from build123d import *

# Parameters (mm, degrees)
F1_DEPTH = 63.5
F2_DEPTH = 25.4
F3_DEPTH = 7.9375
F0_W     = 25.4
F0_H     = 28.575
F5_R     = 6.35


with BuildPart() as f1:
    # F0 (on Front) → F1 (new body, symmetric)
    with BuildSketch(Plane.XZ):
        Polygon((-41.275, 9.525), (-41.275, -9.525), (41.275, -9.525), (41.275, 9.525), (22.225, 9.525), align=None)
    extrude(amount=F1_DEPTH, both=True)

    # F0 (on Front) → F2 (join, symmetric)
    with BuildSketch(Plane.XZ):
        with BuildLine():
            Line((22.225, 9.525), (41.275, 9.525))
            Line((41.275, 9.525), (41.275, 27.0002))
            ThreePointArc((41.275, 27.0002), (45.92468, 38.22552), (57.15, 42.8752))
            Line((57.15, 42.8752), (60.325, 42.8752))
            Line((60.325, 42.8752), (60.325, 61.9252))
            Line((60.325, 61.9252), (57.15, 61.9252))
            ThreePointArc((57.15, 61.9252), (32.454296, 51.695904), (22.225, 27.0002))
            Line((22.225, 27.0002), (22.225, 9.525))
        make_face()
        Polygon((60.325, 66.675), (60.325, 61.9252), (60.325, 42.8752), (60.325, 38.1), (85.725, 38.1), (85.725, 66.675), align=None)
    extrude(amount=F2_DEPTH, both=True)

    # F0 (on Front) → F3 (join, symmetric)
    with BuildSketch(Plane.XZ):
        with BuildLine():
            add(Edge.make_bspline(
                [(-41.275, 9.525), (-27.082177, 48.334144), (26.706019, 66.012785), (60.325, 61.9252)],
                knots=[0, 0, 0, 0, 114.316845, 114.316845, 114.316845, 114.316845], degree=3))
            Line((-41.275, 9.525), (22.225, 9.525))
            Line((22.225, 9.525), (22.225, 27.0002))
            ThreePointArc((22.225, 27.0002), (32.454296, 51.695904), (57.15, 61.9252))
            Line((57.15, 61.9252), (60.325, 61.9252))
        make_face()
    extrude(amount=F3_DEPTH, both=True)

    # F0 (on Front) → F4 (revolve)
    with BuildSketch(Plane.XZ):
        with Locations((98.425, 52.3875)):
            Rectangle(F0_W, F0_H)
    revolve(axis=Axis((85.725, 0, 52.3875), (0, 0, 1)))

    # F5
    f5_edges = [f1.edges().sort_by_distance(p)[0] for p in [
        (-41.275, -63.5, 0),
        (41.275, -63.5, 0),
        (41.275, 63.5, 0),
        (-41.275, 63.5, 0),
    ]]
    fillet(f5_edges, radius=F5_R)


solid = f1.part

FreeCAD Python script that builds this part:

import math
import FreeCAD as App
import Part
import Sketcher
Q = App.Units.Quantity


def edges_at(feature, points):
    """Names of the edges that pass closest to the given points."""
    edges = feature.Shape.Edges
    near = lambda p: min(range(len(edges)), key=lambda i: edges[i].distToShape(Part.Vertex(*p))[0])
    return sorted({f"Edge{near(p) + 1}" for p in points})

doc = App.newDocument("Part")
body = doc.addObject("PartDesign::Body", "Body")

sketch1 = body.newObject("Sketcher::SketchObject", "Sketch")
sketch1.AttachmentSupport = (doc.getObject("XZ_Plane"), [""])
sketch1.MapMode = "FlatFace"
sketch1.addGeometry([
    Part.LineSegment(App.Vector(-41, 10, 0), App.Vector(-41, -10, 0)),
    Part.LineSegment(App.Vector(-41, -10, 0), App.Vector(41, -10, 0)),
    Part.LineSegment(App.Vector(41, -10, 0), App.Vector(41, 10, 0)),
    Part.LineSegment(App.Vector(41, 10, 0), App.Vector(-41, 10, 0)),
], False)
sketch1.addConstraint([
    Sketcher.Constraint("Coincident", 0, 2, 1, 1),
    Sketcher.Constraint("Coincident", 1, 2, 2, 1),
    Sketcher.Constraint("Coincident", 2, 2, 3, 1),
    Sketcher.Constraint("Coincident", 3, 2, 0, 1),
    Sketcher.Constraint("Vertical", 0),
    Sketcher.Constraint("Horizontal", 1),
    Sketcher.Constraint("Vertical", 2),
    Sketcher.Constraint("Horizontal", 3),
    Sketcher.Constraint("Symmetric", 0, 2, 2, 2, -1, 1),
    Sketcher.Constraint("DistanceX", 1, 1, 1, 2, Q("3.25 in")),
    Sketcher.Constraint("DistanceY", 0, 2, 0, 1, Q("0.75 in")),
])
pad1 = body.newObject("PartDesign::Pad", "Pad")
pad1.Profile = sketch1
pad1.Length = Q("5 in")
pad1.Midplane = True

sketch2 = body.newObject("Sketcher::SketchObject", "Sketch001")
sketch2.AttachmentSupport = (doc.getObject("XZ_Plane"), [""])
sketch2.MapMode = "FlatFace"
sketch2.addGeometry([
    Part.LineSegment(App.Vector(22.2, 9.5, 0), App.Vector(41.3, 9.5, 0)),
    Part.LineSegment(App.Vector(41.3, 9.5, 0), App.Vector(41.3, 27, 0)),
    Part.ArcOfCircle(Part.Circle(App.Vector(57.2, 27, 0), App.Vector(0, 0, 1), 15.9), math.radians(90), math.radians(180)),
    Part.LineSegment(App.Vector(57.1, 42.9, 0), App.Vector(60.3, 42.9, 0)),
    Part.LineSegment(App.Vector(60.3, 42.9, 0), App.Vector(60.3, 38.1, 0)),
    Part.LineSegment(App.Vector(60.3, 38.1, 0), App.Vector(85.7, 38.1, 0)),
    Part.LineSegment(App.Vector(85.7, 38.1, 0), App.Vector(85.7, 66.7, 0)),
    Part.LineSegment(App.Vector(85.7, 66.7, 0), App.Vector(60.3, 66.7, 0)),
    Part.LineSegment(App.Vector(60.3, 66.7, 0), App.Vector(60.3, 61.9, 0)),
    Part.LineSegment(App.Vector(60.3, 61.9, 0), App.Vector(57.1, 61.9, 0)),
    Part.ArcOfCircle(Part.Circle(App.Vector(57.2, 27, 0), App.Vector(0, 0, 1), 34.9), math.radians(90), math.radians(180)),
    Part.LineSegment(App.Vector(22.2, 27, 0), App.Vector(22.2, 9.5, 0)),
], False)
sketch2.addConstraint([
    Sketcher.Constraint("Coincident", 0, 2, 1, 1),
    Sketcher.Constraint("Tangent", 1, 2, 2, 2),
    Sketcher.Constraint("Tangent", 2, 1, 3, 1),
    Sketcher.Constraint("Coincident", 3, 2, 4, 1),
    Sketcher.Constraint("Coincident", 4, 2, 5, 1),
    Sketcher.Constraint("Coincident", 5, 2, 6, 1),
    Sketcher.Constraint("Coincident", 6, 2, 7, 1),
    Sketcher.Constraint("Coincident", 7, 2, 8, 1),
    Sketcher.Constraint("Coincident", 8, 2, 9, 1),
    Sketcher.Constraint("Tangent", 9, 2, 10, 1),
    Sketcher.Constraint("Tangent", 10, 2, 11, 1),
    Sketcher.Constraint("Coincident", 11, 2, 0, 1),
    Sketcher.Constraint("Horizontal", 0),
    Sketcher.Constraint("Vertical", 1),
    Sketcher.Constraint("Horizontal", 3),
    Sketcher.Constraint("Vertical", 4),
    Sketcher.Constraint("Horizontal", 5),
    Sketcher.Constraint("Vertical", 6),
    Sketcher.Constraint("Horizontal", 7),
    Sketcher.Constraint("Vertical", 8),
    Sketcher.Constraint("Horizontal", 9),
    Sketcher.Constraint("Vertical", 11),
    Sketcher.Constraint("Coincident", 10, 3, 2, 3),
    Sketcher.Constraint("Vertical", 4, 2, 7, 2),
    Sketcher.Constraint("DistanceX", 5, 1, 5, 2, Q("1 in")),
    Sketcher.Constraint("Radius", 2, Q("0.625 in")),
    Sketcher.Constraint("Radius", 10, Q("1.375 in")),
    Sketcher.Constraint("DistanceY", -1, 1, 4, 2, Q("1.5 in")),
    Sketcher.Constraint("DistanceX", 3, 1, 3, 2, Q("0.125 in")),
    Sketcher.Constraint("DistanceY", 1, 1, 1, 2, Q("0.688 in")),
    Sketcher.Constraint("DistanceY", 4, 2, 4, 1, Q("0.188 in")),
    Sketcher.Constraint("DistanceY", 6, 1, 6, 2, Q("1.125 in")),
    Sketcher.Constraint("DistanceX", -1, 1, 2, 3, Q("2.25 in")),
])
pad2 = body.newObject("PartDesign::Pad", "Pad001")
pad2.Profile = sketch2
pad2.Length = Q("2 in")
pad2.Midplane = True

sketch3 = body.newObject("Sketcher::SketchObject", "Sketch002")
sketch3.AttachmentSupport = (doc.getObject("XZ_Plane"), [""])
sketch3.MapMode = "FlatFace"
sketch3.addGeometry([
    Part.BSplineCurve([App.Vector(-41.275, 9.525, 0), App.Vector(-27.082177, 48.334144, 0), App.Vector(26.706019, 66.012785, 0), App.Vector(60.325, 61.9252, 0)], [4, 4], [0, 114.316845], False, 3, [1, 1, 1, 1], False),
    Part.LineSegment(App.Vector(-41.275, 9.525, 0), App.Vector(22.225, 9.525, 0)),
    Part.LineSegment(App.Vector(22.225, 9.525, 0), App.Vector(22.225, 27.0002, 0)),
    Part.ArcOfCircle(Part.Circle(App.Vector(57.150001, 27.000199, 0), App.Vector(0, 0, 1), 34.925001), math.radians(90.000002), math.radians(179.999998)),
    Part.LineSegment(App.Vector(57.15, 61.9252, 0), App.Vector(60.325, 61.9252, 0)),
], False)
sketch3.addConstraint([
    Sketcher.Constraint("Block", 0),
    Sketcher.Constraint("Coincident", 0, 1, 1, 1),
    Sketcher.Constraint("Coincident", 1, 2, 2, 1),
    Sketcher.Constraint("Tangent", 2, 2, 3, 2),
    Sketcher.Constraint("Tangent", 3, 1, 4, 1),
    Sketcher.Constraint("Coincident", 4, 2, 0, 2),
    Sketcher.Constraint("Horizontal", 1),
    Sketcher.Constraint("Vertical", 2),
    Sketcher.Constraint("Horizontal", 4),
    Sketcher.Constraint("DistanceX", 1, 1, 1, 2, Q("2.5 in")),
    Sketcher.Constraint("Radius", 3, Q("1.375 in")),
])
pad3 = body.newObject("PartDesign::Pad", "Pad002")
pad3.Profile = sketch3
pad3.Length = Q("0.625 in")
pad3.Midplane = True

sketch4 = body.newObject("Sketcher::SketchObject", "Sketch003")
sketch4.AttachmentSupport = (doc.getObject("XZ_Plane"), [""])
sketch4.MapMode = "FlatFace"
sketch4.addGeometry([
    Part.LineSegment(App.Vector(86, 67, 0), App.Vector(86, 38, 0)),
    Part.LineSegment(App.Vector(86, 38, 0), App.Vector(111, 38, 0)),
    Part.LineSegment(App.Vector(111, 38, 0), App.Vector(111, 67, 0)),
    Part.LineSegment(App.Vector(111, 67, 0), App.Vector(86, 67, 0)),
], False)
sketch4.addGeometry(Part.LineSegment(App.Vector(86, 38, 0), App.Vector(86, 67, 0)), True)
sketch4.addConstraint([
    Sketcher.Constraint("Coincident", 0, 2, 1, 1),
    Sketcher.Constraint("Coincident", 1, 2, 2, 1),
    Sketcher.Constraint("Coincident", 2, 2, 3, 1),
    Sketcher.Constraint("Coincident", 3, 2, 0, 1),
    Sketcher.Constraint("Vertical", 0),
    Sketcher.Constraint("Horizontal", 1),
    Sketcher.Constraint("Vertical", 2),
    Sketcher.Constraint("Horizontal", 3),
    Sketcher.Constraint("Vertical", 4),
    Sketcher.Constraint("Coincident", 4, 1, 0, 2),
    Sketcher.Constraint("Horizontal", 2, 2, 4, 2),
    Sketcher.Constraint("DistanceX", 1, 1, 1, 2, Q("1 in")),
    Sketcher.Constraint("DistanceY", -1, 1, 0, 2, Q("1.5 in")),
    Sketcher.Constraint("DistanceY", 0, 2, 0, 1, Q("1.125 in")),
    Sketcher.Constraint("DistanceX", -1, 1, 0, 2, Q("3.375 in")),
])
revolution = body.newObject("PartDesign::Revolution", "Revolution")
revolution.Profile = sketch4
revolution.ReferenceAxis = (sketch4, ["Axis0"])
revolution.Angle = 360
doc.recompute()

fillet = body.newObject("PartDesign::Fillet", "Fillet")
fillet.Base = (revolution, edges_at(revolution, [
    (-41.275, -63.5, 0),
    (41.275, -63.5, 0),
    (41.275, 63.5, 0),
    (-41.275, 63.5, 0),
]))
fillet.Radius = Q("0.25 in")

doc.recompute()
